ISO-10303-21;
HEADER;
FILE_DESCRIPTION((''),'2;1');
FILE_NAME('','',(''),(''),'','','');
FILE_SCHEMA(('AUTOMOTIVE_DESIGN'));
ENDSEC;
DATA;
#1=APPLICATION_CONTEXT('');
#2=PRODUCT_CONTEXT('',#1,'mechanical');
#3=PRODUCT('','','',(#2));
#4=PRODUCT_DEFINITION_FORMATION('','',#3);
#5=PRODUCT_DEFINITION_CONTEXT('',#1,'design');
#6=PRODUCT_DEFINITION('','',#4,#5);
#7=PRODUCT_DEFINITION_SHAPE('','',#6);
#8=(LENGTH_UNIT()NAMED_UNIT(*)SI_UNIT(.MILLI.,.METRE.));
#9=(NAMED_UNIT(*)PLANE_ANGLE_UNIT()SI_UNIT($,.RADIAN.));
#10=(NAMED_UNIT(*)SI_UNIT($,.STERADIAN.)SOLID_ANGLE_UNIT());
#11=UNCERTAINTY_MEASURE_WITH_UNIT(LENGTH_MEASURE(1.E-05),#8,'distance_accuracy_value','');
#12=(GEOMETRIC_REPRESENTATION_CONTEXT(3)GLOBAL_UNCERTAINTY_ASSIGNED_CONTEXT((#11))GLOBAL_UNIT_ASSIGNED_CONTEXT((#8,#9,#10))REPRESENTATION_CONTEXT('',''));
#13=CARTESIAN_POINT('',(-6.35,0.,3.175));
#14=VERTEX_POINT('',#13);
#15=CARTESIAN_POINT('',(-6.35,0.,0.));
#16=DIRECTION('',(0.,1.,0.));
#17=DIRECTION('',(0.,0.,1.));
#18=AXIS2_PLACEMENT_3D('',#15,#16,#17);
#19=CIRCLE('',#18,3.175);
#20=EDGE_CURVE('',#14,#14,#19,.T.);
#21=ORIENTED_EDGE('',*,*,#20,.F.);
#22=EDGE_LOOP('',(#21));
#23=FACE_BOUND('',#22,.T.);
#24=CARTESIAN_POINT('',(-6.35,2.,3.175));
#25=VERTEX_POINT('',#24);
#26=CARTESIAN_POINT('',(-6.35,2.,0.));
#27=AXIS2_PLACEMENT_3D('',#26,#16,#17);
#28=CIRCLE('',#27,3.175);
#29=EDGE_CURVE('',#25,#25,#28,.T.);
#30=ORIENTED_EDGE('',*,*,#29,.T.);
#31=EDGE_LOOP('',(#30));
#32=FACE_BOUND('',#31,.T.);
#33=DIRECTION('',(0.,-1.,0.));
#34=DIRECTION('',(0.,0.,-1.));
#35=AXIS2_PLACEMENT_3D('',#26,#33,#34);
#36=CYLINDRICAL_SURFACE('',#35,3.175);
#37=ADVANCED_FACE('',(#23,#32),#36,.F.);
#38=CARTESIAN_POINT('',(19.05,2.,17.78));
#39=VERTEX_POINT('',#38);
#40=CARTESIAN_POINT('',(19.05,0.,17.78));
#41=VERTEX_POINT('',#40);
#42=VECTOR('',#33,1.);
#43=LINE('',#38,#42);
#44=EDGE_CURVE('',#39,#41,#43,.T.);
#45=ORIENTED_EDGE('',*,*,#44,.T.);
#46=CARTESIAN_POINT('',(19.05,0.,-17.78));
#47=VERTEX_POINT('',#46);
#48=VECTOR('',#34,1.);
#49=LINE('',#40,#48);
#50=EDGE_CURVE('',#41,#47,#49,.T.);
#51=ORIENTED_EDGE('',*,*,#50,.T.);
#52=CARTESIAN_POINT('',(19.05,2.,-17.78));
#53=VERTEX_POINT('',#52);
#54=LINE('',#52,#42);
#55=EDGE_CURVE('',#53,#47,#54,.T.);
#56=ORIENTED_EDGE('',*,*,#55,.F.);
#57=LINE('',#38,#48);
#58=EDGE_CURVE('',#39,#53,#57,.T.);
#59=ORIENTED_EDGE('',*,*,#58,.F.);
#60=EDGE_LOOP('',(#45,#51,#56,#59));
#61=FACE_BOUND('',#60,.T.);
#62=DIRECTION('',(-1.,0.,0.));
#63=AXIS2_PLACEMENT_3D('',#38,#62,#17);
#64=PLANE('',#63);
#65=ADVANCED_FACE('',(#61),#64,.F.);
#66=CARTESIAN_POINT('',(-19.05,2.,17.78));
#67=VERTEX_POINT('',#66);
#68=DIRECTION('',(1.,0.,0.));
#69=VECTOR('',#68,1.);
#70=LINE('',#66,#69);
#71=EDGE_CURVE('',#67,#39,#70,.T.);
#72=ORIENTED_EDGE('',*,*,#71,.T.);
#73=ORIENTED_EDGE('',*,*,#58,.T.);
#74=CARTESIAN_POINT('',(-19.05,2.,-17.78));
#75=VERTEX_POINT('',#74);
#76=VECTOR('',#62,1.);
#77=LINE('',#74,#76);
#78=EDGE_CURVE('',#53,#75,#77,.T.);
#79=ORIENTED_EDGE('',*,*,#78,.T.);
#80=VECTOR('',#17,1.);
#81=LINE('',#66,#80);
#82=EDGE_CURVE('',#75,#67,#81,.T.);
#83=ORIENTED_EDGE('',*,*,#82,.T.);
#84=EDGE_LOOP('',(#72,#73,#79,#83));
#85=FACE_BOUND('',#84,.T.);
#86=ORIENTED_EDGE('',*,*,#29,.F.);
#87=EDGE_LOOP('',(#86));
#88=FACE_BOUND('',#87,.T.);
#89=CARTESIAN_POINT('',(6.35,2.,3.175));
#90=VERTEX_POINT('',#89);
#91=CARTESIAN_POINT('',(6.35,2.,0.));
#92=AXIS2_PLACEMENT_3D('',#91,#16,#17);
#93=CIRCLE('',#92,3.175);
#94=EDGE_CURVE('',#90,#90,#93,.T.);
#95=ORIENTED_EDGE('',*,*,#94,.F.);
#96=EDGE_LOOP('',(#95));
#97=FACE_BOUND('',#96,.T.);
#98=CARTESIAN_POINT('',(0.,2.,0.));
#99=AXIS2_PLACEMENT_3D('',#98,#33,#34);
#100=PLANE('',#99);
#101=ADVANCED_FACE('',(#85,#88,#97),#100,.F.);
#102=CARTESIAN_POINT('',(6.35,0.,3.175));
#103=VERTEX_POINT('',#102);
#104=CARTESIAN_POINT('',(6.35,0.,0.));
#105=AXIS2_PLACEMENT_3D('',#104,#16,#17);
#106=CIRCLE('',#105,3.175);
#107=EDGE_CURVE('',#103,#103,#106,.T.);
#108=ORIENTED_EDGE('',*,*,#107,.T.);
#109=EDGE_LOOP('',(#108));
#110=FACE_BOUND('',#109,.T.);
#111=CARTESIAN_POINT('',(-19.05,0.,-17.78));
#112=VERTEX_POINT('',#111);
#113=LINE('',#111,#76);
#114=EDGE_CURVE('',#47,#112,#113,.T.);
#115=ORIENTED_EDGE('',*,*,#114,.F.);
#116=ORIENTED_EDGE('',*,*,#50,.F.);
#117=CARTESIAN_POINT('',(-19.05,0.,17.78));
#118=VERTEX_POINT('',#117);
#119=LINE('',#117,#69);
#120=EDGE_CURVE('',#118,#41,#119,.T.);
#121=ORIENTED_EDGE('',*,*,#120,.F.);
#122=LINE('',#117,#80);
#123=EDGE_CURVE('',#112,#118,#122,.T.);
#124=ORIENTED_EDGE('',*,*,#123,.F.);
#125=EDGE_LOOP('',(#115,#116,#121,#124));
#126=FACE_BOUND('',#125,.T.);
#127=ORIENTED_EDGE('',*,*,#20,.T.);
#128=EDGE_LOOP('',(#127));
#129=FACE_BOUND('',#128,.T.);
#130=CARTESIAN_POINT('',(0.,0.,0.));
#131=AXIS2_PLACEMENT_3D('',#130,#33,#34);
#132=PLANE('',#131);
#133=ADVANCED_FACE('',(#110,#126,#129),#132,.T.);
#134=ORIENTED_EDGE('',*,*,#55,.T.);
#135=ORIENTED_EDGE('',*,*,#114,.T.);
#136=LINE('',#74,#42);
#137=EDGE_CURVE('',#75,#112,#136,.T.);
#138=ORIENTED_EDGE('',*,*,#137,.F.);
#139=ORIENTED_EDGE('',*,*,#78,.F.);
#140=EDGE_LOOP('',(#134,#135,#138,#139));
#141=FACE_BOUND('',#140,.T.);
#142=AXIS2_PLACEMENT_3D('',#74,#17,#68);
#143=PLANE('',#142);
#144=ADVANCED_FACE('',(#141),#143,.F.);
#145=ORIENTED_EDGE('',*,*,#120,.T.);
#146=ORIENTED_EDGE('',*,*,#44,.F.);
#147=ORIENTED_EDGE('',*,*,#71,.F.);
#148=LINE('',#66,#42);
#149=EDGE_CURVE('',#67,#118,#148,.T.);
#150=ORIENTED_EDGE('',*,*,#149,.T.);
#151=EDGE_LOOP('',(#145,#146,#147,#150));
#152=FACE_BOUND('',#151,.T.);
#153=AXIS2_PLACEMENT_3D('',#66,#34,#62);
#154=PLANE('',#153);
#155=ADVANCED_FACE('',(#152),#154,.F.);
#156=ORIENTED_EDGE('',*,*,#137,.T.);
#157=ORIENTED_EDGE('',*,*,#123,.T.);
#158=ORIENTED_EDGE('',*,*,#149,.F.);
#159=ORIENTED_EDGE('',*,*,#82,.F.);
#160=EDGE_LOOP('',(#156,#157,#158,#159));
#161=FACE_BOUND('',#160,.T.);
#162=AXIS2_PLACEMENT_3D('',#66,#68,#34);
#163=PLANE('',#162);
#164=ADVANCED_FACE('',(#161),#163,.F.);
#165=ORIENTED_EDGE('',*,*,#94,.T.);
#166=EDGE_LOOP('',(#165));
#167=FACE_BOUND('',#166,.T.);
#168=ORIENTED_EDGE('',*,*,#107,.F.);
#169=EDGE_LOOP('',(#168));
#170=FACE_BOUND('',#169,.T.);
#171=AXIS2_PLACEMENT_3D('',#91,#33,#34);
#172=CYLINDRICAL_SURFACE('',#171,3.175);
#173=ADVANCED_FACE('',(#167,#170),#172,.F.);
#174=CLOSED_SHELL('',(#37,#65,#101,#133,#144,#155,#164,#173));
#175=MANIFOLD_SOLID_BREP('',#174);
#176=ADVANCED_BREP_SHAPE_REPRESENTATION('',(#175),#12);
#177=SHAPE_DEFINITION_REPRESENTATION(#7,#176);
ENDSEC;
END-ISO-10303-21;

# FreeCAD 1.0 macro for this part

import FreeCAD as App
import Part
import Sketcher
from FreeCAD import Vector
Q = App.Units.Quantity


def add_polygon(sketch, points):
    """Adds a closed chain of lines whose ends are joined by coincident constraints."""
    first, n = sketch.GeometryCount, len(points)
    for a, b in zip(points, points[1:] + points[:1]):
        sketch.addGeometry(Part.LineSegment(App.Vector(*a, 0), App.Vector(*b, 0)), False)
    for i in range(n):
        sketch.addConstraint(Sketcher.Constraint("Coincident", first + i, 2, first + (i + 1) % n, 1))

doc = App.newDocument("Part")
body = doc.addObject("PartDesign::Body", "Body")

sketch1 = body.newObject("Sketcher::SketchObject", "Sketch")
sketch1.AttachmentSupport = (doc.getObject("XZ_Plane"), [""])
sketch1.MapMode = "FlatFace"
add_polygon(sketch1, [(-19.05, -17.78), (-19.05, 17.78), (19.05, 17.78), (19.05, -17.78)])
sketch1.addGeometry(Part.Circle(Vector(-6.35, 0, 0), Vector(0, 0, 1), 3.175), False)
sketch1.addGeometry(Part.Circle(Vector(6.35, 0, 0), Vector(0, 0, 1), 3.175), False)
sketch1.addConstraint([
    Sketcher.Constraint("Vertical", 0),
    Sketcher.Constraint("Horizontal", 1),
    Sketcher.Constraint("Vertical", 2),
    Sketcher.Constraint("Horizontal", 3),
    Sketcher.Constraint("Equal", 4, 5),
    Sketcher.Constraint("Symmetric", 4, 3, 5, 3, -1, 1),
    Sketcher.Constraint("Symmetric", 0, 2, 2, 2, -1, 1),
    Sketcher.Constraint("PointOnObject", 4, 3, -1),
    Sketcher.Constraint("Diameter", 4, Q("0.25 in")),
    Sketcher.Constraint("DistanceX", 1, 1, 1, 2, Q("1.5 in")),
    Sketcher.Constraint("DistanceY", 0, 1, 0, 2, Q("1.4 in")),
    Sketcher.Constraint("DistanceX", 0, 2, 5, 3, Q("1 in")),
])
pad1 = body.newObject("PartDesign::Pad", "Pad")
pad1.Profile = sketch1
pad1.Length = 2
pad1.Reversed = True

doc.recompute()
